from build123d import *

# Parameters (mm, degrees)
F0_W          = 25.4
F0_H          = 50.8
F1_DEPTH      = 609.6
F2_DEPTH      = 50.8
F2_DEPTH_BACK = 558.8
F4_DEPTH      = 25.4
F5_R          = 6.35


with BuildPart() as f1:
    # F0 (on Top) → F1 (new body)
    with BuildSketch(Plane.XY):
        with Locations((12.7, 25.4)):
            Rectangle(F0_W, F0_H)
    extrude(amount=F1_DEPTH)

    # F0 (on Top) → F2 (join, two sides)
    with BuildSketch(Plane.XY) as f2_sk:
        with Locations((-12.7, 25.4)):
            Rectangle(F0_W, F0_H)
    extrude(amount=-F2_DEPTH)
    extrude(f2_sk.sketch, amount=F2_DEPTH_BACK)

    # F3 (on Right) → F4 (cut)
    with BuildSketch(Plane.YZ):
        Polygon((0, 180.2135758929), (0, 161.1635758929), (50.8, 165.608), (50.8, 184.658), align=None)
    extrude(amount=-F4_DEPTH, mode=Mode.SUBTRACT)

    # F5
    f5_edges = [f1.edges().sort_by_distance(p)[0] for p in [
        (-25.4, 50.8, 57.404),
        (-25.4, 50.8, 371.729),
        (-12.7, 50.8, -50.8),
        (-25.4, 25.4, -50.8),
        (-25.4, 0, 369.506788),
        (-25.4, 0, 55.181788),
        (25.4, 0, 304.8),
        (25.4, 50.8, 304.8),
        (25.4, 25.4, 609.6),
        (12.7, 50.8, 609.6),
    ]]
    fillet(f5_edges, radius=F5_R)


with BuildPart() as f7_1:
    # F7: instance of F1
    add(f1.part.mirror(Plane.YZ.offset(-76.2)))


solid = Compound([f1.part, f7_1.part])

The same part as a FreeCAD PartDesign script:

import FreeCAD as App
import Part
import Sketcher
Q = App.Units.Quantity


def edges_at(feature, points):
    """Names of the edges that pass closest to the given points."""
    edges = feature.Shape.Edges
    near = lambda p: min(range(len(edges)), key=lambda i: edges[i].distToShape(Part.Vertex(*p))[0])
    return sorted({f"Edge{near(p) + 1}" for p in points})


def add_polygon(sketch, points):
    """Adds a closed chain of lines whose ends are joined by coincident constraints."""
    first, n = sketch.GeometryCount, len(points)
    for a, b in zip(points, points[1:] + points[:1]):
        sketch.addGeometry(Part.LineSegment(App.Vector(*a, 0), App.Vector(*b, 0)), False)
    for i in range(n):
        sketch.addConstraint(Sketcher.Constraint("Coincident", first + i, 2, first + (i + 1) % n, 1))

doc = App.newDocument("Part")
body = doc.addObject("PartDesign::Body", "Body")

sketch1 = body.newObject("Sketcher::SketchObject", "Sketch")
sketch1.AttachmentSupport = (doc.getObject("XY_Plane"), [""])
sketch1.MapMode = "FlatFace"
add_polygon(sketch1, [(0, 50.8), (0, 0), (25.4, 0), (25.4, 50.8)])
sketch1.addConstraint([
    Sketcher.Constraint("Vertical", 0),
    Sketcher.Constraint("Horizontal", 1),
    Sketcher.Constraint("Vertical", 2),
    Sketcher.Constraint("Horizontal", 3),
    Sketcher.Constraint("Coincident", 0, 2, -1, 1),
    Sketcher.Constraint("DistanceX", 1, 1, 1, 2, Q("1 in")),
    Sketcher.Constraint("DistanceY", 0, 2, 0, 1, Q("2 in")),
])
pad1 = body.newObject("PartDesign::Pad", "Pad")
pad1.Profile = sketch1
pad1.Length = Q("24 in")

sketch2 = body.newObject("Sketcher::SketchObject", "Sketch001")
sketch2.AttachmentSupport = (doc.getObject("XY_Plane"), [""])
sketch2.MapMode = "FlatFace"
add_polygon(sketch2, [(-25.4, 50.8), (-25.4, 0), (0, 0), (0, 50.8)])
sketch2.addConstraint([
    Sketcher.Constraint("Vertical", 0),
    Sketcher.Constraint("Horizontal", 1),
    Sketcher.Constraint("Vertical", 2),
    Sketcher.Constraint("Horizontal", 3),
    Sketcher.Constraint("Coincident", 1, 2, -1, 1),
    Sketcher.Constraint("DistanceX", 1, 1, 1, 2, Q("1 in")),
    Sketcher.Constraint("DistanceY", 0, 2, 0, 1, Q("2 in")),
])
pad2 = body.newObject("PartDesign::Pad", "Pad001")
pad2.Profile = sketch2
pad2.Type = "TwoLengths"
pad2.Length = Q("2 in")
pad2.Length2 = Q("22 in")
pad2.Reversed = True

sketch3 = body.newObject("Sketcher::SketchObject", "Sketch002")
sketch3.AttachmentSupport = (doc.getObject("YZ_Plane"), [""])
sketch3.MapMode = "FlatFace"
add_polygon(sketch3, [(0, 180.213576), (0, 161.163576), (50.8, 165.608), (50.8, 184.658)])
sketch3.addConstraint([
    Sketcher.Constraint("Vertical", 0),
    Sketcher.Constraint("Vertical", 2),
    Sketcher.Constraint("PointOnObject", 0, 2, -2),
    Sketcher.Constraint("Parallel", 1, 3),
    Sketcher.Constraint("DistanceX", -1, 1, 1, 2, Q("2 in")),
    Sketcher.Constraint("Angle", 1, Q("5 deg")),
    Sketcher.Constraint("DistanceY", 0, 2, 0, 1, Q("0.75 in")),
    Sketcher.Constraint("DistanceY", -1, 1, 1, 2, Q("6.52 in")),
])
pocket1 = body.newObject("PartDesign::Pocket", "Pocket")
pocket1.Profile = sketch3
pocket1.Length = Q("1 in")
doc.recompute()

fillet = body.newObject("PartDesign::Fillet", "Fillet")
fillet.Base = (pocket1, edges_at(pocket1, [
    (-25.4, 50.8, 57.404),
    (-25.4, 50.8, 371.729),
    (-12.7, 50.8, -50.8),
    (-25.4, 25.4, -50.8),
    (-25.4, 0, 369.507),
    (-25.4, 0, 55.182),
    (25.4, 0, 304.8),
    (25.4, 50.8, 304.8),
    (25.4, 25.4, 609.6),
    (12.7, 50.8, 609.6),
]))
fillet.Radius = Q("0.25 in")
body2 = doc.addObject("PartDesign::Body", "Body001")
doc.recompute()

mirroring = doc.addObject("Part::Mirroring", "Mirroring")
mirroring.Source = body
mirroring.Base = App.Vector(-76.2, 0, 0)
mirroring.Normal = App.Vector(1, 0, 0)
body2.BaseFeature = mirroring
doc.recompute()
mirroring.Visibility = False

doc.recompute()
